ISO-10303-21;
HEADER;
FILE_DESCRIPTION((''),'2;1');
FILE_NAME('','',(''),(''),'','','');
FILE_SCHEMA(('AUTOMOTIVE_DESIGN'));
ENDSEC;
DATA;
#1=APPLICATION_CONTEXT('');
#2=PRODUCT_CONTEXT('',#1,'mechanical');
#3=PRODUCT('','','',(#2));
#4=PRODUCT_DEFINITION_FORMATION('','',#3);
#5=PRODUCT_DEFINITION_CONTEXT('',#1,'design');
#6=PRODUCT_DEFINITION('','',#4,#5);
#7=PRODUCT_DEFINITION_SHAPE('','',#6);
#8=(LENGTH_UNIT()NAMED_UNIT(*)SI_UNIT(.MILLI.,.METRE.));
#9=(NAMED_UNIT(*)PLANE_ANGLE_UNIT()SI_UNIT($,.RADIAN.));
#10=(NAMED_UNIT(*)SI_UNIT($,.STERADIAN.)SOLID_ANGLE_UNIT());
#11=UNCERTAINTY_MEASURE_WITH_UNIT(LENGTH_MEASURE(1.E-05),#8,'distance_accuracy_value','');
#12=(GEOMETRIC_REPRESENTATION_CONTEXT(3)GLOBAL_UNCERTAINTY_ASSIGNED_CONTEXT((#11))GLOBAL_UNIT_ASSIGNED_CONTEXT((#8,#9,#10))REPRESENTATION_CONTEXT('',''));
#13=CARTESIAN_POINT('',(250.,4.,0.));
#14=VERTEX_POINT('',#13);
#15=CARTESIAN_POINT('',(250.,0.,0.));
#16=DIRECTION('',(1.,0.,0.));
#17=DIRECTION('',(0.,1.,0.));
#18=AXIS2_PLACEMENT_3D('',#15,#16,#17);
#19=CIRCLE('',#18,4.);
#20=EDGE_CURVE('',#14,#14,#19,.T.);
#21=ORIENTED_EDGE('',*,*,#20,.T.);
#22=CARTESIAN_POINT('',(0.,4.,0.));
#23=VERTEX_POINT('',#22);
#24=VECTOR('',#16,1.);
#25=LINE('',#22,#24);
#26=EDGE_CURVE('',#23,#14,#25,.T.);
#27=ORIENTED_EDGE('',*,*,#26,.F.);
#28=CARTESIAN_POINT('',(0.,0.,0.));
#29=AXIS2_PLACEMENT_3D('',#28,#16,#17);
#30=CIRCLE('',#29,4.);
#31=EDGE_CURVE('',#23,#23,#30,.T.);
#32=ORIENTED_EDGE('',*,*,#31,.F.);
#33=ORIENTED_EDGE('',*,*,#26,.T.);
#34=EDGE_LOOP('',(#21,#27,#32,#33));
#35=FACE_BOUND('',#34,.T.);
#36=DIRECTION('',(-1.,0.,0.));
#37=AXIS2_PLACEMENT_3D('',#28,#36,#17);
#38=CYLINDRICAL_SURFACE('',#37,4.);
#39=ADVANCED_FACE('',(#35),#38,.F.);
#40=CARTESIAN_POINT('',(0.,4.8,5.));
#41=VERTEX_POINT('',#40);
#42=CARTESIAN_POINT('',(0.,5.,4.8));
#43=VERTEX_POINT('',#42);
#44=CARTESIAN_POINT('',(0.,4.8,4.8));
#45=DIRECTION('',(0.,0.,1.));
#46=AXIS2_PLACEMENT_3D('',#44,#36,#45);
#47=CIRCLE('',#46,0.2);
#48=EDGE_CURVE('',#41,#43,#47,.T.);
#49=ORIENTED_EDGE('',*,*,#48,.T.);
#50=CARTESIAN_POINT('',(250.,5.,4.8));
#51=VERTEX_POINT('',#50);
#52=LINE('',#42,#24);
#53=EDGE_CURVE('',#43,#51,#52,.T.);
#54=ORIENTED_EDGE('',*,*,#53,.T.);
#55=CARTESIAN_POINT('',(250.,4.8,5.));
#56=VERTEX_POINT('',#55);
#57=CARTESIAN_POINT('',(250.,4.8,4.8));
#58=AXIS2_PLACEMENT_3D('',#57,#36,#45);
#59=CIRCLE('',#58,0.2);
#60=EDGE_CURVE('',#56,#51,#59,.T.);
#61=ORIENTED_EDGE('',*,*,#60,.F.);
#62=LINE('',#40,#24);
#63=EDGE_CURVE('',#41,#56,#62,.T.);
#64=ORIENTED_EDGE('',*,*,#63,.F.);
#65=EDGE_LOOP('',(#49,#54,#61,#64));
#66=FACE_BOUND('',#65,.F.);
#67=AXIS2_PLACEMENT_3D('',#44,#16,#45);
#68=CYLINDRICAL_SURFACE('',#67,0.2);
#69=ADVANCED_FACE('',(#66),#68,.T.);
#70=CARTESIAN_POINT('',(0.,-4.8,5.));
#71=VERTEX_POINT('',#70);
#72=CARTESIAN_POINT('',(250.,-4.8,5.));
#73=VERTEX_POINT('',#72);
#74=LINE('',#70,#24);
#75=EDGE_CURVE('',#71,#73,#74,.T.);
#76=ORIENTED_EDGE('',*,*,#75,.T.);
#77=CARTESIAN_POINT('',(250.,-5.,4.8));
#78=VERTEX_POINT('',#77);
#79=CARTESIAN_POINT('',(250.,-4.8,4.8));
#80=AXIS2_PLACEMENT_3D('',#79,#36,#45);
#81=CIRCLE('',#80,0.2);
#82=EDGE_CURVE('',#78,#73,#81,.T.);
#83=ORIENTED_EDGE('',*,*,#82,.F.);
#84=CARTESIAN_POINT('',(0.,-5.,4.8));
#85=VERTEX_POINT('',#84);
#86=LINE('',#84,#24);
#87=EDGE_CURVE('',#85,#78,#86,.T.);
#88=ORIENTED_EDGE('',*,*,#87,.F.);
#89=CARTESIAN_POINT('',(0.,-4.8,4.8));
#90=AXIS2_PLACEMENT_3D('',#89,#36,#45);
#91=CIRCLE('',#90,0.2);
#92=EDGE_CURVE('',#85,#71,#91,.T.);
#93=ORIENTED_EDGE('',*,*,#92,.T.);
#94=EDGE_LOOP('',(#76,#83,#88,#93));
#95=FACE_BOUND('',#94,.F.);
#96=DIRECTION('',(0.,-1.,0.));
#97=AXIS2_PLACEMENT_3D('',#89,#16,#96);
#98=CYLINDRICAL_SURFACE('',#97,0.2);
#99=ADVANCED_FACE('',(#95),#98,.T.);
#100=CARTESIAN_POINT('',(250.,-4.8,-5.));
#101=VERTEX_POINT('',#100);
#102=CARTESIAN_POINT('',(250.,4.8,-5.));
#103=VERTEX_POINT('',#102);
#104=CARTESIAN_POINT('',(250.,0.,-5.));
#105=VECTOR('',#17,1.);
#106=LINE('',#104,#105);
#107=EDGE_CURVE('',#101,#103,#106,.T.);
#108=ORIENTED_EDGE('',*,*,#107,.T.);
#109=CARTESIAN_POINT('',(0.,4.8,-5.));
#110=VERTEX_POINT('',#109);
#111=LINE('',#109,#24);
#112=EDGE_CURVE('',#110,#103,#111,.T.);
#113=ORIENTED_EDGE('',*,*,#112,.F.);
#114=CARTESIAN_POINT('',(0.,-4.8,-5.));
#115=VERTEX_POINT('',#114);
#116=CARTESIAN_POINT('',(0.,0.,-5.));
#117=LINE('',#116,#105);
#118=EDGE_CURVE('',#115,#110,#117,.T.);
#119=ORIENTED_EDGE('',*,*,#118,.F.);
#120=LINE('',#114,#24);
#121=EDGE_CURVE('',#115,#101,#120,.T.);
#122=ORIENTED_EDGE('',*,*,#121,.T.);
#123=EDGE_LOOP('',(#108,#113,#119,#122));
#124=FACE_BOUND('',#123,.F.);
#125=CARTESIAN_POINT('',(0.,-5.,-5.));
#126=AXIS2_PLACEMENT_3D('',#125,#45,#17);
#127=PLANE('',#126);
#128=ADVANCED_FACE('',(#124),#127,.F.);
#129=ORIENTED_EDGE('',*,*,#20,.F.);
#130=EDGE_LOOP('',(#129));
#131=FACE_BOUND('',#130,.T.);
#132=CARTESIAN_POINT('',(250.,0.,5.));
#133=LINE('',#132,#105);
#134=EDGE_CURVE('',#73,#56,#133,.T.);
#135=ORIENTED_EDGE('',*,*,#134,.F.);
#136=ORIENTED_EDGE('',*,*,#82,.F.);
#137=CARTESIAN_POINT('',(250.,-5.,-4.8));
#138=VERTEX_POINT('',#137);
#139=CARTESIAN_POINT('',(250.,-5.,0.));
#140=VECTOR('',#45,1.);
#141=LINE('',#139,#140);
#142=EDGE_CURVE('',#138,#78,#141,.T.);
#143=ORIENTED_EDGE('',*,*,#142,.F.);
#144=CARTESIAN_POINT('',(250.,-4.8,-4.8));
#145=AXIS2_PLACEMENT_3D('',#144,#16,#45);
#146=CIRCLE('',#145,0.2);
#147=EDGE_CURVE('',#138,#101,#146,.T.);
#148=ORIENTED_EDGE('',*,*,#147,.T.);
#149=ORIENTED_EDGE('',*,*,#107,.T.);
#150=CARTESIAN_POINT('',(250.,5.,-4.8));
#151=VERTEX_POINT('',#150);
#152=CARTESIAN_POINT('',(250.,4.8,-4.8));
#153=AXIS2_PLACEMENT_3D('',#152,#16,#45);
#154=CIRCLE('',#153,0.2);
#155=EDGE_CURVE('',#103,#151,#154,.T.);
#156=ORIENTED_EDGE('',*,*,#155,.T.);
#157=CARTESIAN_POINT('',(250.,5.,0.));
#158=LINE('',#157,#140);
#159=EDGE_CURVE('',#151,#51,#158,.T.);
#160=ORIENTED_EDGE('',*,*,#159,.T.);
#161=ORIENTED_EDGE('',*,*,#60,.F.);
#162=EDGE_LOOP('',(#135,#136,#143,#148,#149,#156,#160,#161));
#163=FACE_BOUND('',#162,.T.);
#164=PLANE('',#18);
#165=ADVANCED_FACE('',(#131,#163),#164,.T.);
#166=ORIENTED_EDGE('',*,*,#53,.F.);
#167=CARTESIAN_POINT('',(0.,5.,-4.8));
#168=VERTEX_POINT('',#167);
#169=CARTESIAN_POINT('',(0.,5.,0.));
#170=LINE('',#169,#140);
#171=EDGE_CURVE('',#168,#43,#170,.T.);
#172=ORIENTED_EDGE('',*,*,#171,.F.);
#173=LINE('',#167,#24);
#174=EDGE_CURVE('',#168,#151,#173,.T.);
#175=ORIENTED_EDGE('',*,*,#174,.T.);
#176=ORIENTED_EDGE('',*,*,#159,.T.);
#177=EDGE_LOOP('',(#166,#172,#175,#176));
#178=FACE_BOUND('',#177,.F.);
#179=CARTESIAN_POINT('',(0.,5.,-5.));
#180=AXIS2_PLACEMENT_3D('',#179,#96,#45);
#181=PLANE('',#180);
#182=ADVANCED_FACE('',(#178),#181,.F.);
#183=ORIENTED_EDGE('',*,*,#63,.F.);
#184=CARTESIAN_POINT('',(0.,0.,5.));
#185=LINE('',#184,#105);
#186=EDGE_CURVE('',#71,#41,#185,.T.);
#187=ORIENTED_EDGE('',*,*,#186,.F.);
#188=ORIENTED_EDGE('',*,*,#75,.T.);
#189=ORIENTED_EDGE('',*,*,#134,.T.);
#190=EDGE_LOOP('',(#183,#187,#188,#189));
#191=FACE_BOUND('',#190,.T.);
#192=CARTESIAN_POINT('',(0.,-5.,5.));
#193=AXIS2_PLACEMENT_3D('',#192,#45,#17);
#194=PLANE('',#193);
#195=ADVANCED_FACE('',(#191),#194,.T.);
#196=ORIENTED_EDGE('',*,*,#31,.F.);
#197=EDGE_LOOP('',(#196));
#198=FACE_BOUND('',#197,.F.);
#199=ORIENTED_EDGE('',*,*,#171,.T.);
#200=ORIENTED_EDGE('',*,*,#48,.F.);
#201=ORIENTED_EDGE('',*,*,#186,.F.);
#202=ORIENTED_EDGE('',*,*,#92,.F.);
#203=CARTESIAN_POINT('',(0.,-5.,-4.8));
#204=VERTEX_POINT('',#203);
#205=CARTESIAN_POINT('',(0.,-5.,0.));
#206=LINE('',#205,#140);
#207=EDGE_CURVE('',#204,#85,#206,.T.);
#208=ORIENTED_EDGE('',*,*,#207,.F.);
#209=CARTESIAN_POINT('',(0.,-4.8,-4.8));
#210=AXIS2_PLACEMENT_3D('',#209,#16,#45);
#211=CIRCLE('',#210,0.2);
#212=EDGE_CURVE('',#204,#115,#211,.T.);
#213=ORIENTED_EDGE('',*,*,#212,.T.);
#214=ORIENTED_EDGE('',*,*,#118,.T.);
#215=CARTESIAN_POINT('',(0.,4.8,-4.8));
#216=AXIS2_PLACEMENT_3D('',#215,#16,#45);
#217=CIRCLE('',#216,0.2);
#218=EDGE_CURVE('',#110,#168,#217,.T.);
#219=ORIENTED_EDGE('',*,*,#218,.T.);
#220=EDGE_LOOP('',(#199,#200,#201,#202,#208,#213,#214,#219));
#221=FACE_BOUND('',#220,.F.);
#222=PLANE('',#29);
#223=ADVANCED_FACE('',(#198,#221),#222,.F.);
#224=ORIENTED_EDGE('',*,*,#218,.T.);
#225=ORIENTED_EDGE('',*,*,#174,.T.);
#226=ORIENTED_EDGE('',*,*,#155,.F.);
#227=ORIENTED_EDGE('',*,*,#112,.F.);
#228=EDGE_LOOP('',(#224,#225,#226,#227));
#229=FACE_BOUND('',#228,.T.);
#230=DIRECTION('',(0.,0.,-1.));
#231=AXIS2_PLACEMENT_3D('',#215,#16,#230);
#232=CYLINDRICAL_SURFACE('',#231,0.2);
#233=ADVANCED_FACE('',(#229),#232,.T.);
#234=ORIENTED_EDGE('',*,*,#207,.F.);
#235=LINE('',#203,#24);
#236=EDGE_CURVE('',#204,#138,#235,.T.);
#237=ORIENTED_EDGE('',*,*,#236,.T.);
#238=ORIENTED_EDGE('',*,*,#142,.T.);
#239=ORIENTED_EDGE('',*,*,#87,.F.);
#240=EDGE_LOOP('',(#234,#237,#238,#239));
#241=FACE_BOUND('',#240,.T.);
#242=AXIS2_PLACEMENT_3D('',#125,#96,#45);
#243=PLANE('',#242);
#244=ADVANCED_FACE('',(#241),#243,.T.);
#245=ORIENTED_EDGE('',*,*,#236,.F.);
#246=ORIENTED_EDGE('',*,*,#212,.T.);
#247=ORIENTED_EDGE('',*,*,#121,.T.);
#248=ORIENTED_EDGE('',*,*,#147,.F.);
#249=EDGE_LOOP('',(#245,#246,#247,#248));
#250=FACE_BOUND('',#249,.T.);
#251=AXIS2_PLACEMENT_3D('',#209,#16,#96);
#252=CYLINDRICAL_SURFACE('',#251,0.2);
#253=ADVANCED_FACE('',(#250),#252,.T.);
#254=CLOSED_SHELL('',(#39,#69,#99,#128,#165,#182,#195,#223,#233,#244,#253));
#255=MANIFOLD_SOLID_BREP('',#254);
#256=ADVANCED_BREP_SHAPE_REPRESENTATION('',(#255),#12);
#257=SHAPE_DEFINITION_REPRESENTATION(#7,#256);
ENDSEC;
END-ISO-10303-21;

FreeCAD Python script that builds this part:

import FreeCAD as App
import Part
import Sketcher
Q = App.Units.Quantity


def edges_at(feature, points):
    """Names of the edges that pass closest to the given points."""
    edges = feature.Shape.Edges
    near = lambda p: min(range(len(edges)), key=lambda i: edges[i].distToShape(Part.Vertex(*p))[0])
    return sorted({f"Edge{near(p) + 1}" for p in points})

doc = App.newDocument("Part")
body = doc.addObject("PartDesign::Body", "Body")

sketch1 = body.newObject("Sketcher::SketchObject", "Sketch")
sketch1.AttachmentSupport = (doc.getObject("YZ_Plane"), [""])
sketch1.MapMode = "FlatFace"
sketch1.addGeometry([
    Part.LineSegment(App.Vector(-5, 5, 0), App.Vector(-5, -5, 0)),
    Part.LineSegment(App.Vector(-5, -5, 0), App.Vector(5, -5, 0)),
    Part.LineSegment(App.Vector(5, -5, 0), App.Vector(5, 5, 0)),
    Part.LineSegment(App.Vector(5, 5, 0), App.Vector(-5, 5, 0)),
    Part.Circle(App.Vector(0, 0, 0), App.Vector(0, 0, 1), 4),
], False)
sketch1.addConstraint([
    Sketcher.Constraint("Coincident", 0, 2, 1, 1),
    Sketcher.Constraint("Coincident", 1, 2, 2, 1),
    Sketcher.Constraint("Coincident", 2, 2, 3, 1),
    Sketcher.Constraint("Coincident", 3, 2, 0, 1),
    Sketcher.Constraint("Vertical", 0),
    Sketcher.Constraint("Horizontal", 1),
    Sketcher.Constraint("Vertical", 2),
    Sketcher.Constraint("Horizontal", 3),
    Sketcher.Constraint("Coincident", 4, 3, -1, 1),
    Sketcher.Constraint("Symmetric", 0, 2, 2, 2, -1, 1),
    Sketcher.Constraint("Equal", 3, 0),
    Sketcher.Constraint("Diameter", 4, Q("8 mm")),
    Sketcher.Constraint("DistanceX", 1, 1, 1, 2, Q("10 mm")),
])
pad1 = body.newObject("PartDesign::Pad", "Pad")
pad1.Profile = sketch1
pad1.Length = 250
doc.recompute()

fillet = body.newObject("PartDesign::Fillet", "Fillet")
fillet.Base = (pad1, edges_at(pad1, [
    (125, 5, 5),
    (125, 5, -5),
    (125, -5, 5),
    (125, -5, -5),
]))
fillet.Radius = 0.2

doc.recompute()
